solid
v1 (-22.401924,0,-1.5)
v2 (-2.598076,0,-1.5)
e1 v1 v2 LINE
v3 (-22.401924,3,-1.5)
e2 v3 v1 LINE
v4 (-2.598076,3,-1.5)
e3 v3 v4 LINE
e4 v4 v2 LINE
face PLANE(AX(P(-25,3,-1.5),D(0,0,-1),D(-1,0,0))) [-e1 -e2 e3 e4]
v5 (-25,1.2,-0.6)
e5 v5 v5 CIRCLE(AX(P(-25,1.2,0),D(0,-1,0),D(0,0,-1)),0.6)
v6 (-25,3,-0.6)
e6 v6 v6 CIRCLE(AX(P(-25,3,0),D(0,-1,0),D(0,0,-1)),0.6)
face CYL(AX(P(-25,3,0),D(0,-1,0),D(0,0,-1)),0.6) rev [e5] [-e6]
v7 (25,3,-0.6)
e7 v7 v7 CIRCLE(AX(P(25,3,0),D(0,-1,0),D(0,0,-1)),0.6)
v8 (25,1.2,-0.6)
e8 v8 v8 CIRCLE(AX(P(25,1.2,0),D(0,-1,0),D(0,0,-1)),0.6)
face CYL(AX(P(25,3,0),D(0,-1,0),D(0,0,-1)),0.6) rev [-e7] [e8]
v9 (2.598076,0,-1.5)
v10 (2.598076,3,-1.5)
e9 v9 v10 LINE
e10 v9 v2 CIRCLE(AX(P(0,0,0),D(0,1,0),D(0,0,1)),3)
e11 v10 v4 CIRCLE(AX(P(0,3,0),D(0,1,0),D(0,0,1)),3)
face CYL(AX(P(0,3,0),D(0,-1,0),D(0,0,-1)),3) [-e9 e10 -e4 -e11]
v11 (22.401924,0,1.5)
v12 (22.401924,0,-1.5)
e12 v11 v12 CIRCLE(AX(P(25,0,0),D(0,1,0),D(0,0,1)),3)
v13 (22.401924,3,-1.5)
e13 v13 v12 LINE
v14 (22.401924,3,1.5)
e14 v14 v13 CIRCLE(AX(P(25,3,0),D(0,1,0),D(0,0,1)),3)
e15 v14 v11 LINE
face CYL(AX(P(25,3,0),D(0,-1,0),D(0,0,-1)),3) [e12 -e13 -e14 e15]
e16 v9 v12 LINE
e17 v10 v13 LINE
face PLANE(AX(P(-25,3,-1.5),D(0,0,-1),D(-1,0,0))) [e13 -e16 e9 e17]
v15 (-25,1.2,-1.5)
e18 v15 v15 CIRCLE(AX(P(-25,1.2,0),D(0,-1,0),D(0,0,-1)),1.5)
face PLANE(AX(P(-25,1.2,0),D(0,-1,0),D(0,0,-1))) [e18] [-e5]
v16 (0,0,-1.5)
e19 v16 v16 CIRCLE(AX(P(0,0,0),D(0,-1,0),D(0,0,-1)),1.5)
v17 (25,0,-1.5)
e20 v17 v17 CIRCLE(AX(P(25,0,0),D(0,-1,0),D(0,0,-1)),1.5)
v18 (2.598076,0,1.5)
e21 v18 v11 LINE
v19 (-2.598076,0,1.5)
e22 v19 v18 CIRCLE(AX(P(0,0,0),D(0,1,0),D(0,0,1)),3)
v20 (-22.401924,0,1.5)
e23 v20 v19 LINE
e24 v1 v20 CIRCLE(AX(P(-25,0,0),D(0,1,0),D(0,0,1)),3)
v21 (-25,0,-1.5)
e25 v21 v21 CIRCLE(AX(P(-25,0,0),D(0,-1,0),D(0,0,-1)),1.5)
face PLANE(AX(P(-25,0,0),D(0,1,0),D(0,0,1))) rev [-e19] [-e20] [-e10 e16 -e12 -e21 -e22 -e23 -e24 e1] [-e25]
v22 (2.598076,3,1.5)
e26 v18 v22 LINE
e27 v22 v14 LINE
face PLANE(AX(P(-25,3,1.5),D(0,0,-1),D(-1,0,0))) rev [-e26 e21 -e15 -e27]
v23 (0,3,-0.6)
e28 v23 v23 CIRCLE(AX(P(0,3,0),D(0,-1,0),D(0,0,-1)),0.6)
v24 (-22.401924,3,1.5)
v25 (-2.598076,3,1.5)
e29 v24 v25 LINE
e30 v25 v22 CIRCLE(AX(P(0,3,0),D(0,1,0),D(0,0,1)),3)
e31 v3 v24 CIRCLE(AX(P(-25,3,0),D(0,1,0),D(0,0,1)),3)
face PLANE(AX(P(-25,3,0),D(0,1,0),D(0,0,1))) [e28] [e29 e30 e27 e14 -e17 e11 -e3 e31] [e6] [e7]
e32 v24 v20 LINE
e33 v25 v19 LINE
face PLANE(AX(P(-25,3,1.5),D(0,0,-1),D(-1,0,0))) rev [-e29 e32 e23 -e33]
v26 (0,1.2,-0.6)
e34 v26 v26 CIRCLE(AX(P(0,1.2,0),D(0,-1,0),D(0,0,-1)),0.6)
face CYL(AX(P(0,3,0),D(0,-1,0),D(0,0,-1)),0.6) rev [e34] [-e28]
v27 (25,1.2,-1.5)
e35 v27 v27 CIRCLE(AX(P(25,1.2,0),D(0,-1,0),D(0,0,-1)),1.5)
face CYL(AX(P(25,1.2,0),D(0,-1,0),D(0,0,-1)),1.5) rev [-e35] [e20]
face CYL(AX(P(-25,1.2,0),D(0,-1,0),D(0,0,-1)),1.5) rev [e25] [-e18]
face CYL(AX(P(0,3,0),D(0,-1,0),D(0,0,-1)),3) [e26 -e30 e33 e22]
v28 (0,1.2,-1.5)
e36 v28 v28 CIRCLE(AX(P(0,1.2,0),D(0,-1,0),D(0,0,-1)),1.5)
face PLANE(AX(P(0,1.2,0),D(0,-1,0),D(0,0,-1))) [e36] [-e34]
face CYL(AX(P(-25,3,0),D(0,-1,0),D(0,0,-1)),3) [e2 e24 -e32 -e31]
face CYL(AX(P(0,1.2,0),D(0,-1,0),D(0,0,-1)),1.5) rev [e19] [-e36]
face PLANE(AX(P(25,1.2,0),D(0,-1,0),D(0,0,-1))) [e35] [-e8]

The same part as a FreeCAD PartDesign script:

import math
import FreeCAD as App
import Part
import Sketcher

doc = App.newDocument("Part")
body = doc.addObject("PartDesign::Body", "Body")

# Sketch on XZ plane
sketch1 = body.newObject("Sketcher::SketchObject", "Sketch")
sketch1.AttachmentSupport = (doc.getObject("XZ_Plane"), [""])
sketch1.MapMode = "FlatFace"
sketch1.addGeometry([
    Part.LineSegment(App.Vector(2.6, 1.5, 0), App.Vector(22.4, 1.5, 0)),  # 0
    Part.ArcOfCircle(Part.Circle(App.Vector(25, 0, 0), App.Vector(0, 0, 1), 3), math.radians(-150), math.radians(150)),  # 1
    Part.LineSegment(App.Vector(22.4, -1.5, 0), App.Vector(2.6, -1.5, 0)),  # 2
    Part.ArcOfCircle(Part.Circle(App.Vector(0, 0, 0), App.Vector(0, 0, 1), 3), math.radians(-150), math.radians(-30)),  # 3
    Part.LineSegment(App.Vector(-2.6, -1.5, 0), App.Vector(-22.4, -1.5, 0)),  # 4
    Part.ArcOfCircle(Part.Circle(App.Vector(-25, 0, 0), App.Vector(0, 0, 1), 3), math.radians(30), math.radians(330)),  # 5
    Part.LineSegment(App.Vector(-22.4, 1.5, 0), App.Vector(-2.6, 1.5, 0)),  # 6
    Part.ArcOfCircle(Part.Circle(App.Vector(0, 0, 0), App.Vector(0, 0, 1), 3), math.radians(30), math.radians(150)),  # 7
], False)
sketch1.addConstraint([
    Sketcher.Constraint("Coincident", 0, 2, 1, 2),
    Sketcher.Constraint("Coincident", 1, 1, 2, 1),
    Sketcher.Constraint("Coincident", 2, 2, 3, 2),
    Sketcher.Constraint("Coincident", 3, 1, 4, 1),
    Sketcher.Constraint("Coincident", 4, 2, 5, 2),
    Sketcher.Constraint("Coincident", 5, 1, 6, 1),
    Sketcher.Constraint("Coincident", 6, 2, 7, 2),
    Sketcher.Constraint("Coincident", 7, 1, 0, 1),
    Sketcher.Constraint("Horizontal", 0),
    Sketcher.Constraint("Horizontal", 2),
    Sketcher.Constraint("Horizontal", 4),
    Sketcher.Constraint("Horizontal", 6),
    Sketcher.Constraint("Coincident", 3, 3, -1, 1),
    Sketcher.Constraint("Coincident", 7, 3, -1, 1),
    Sketcher.Constraint("Equal", 1, 3),
    Sketcher.Constraint("Equal", 3, 5),
    Sketcher.Constraint("Equal", 5, 7),
    Sketcher.Constraint("Symmetric", 1, 3, 5, 3, -1, 1),
    Sketcher.Constraint("Symmetric", 1, 1, 4, 2, -2),
    Sketcher.Constraint("Horizontal", 0, 2, 5, 1),
    Sketcher.Constraint("Vertical", 0, 2, 1, 1),
    Sketcher.Constraint("Radius", 1, 3.0),
    Sketcher.Constraint("DistanceX", -1, 1, 1, 3, 25.0),
    Sketcher.Constraint("DistanceY", 1, 1, 0, 2, 3.0),
])
pad1 = body.newObject("PartDesign::Pad", "Pad")
pad1.Profile = sketch1
pad1.Length = 3
pad1.Reversed = True

# Sketch on XZ plane
sketch2 = body.newObject("Sketcher::SketchObject", "Sketch001")
sketch2.AttachmentSupport = (doc.getObject("XZ_Plane"), [""])
sketch2.MapMode = "FlatFace"
sketch2.addGeometry([
    Part.Circle(App.Vector(-25, 0, 0), App.Vector(0, 0, 1), 1.5),
    Part.Circle(App.Vector(0, 0, 0), App.Vector(0, 0, 1), 1.5),
    Part.Circle(App.Vector(25, 0, 0), App.Vector(0, 0, 1), 1.5),
], False)
sketch2.addConstraint([
    Sketcher.Constraint("Coincident", 1, 3, -1, 1),
    Sketcher.Constraint("Equal", 0, 1),
    Sketcher.Constraint("Equal", 1, 2),
    Sketcher.Constraint("Symmetric", 0, 3, 2, 3, -1, 1),
    Sketcher.Constraint("PointOnObject", 0, 3, -1),
    Sketcher.Constraint("Diameter", 0, 3.0),
    Sketcher.Constraint("DistanceX", 0, 3, -1, 1, 25.0),
])
pocket1 = body.newObject("PartDesign::Pocket", "Pocket")
pocket1.Profile = sketch2
pocket1.Length = 1.2

# Sketch on XZ plane
sketch3 = body.newObject("Sketcher::SketchObject", "Sketch002")
sketch3.AttachmentSupport = (doc.getObject("XZ_Plane"), [""])
sketch3.MapMode = "FlatFace"
sketch3.addGeometry([
    Part.Circle(App.Vector(0, 0, 0), App.Vector(0, 0, 1), 0.6),
    Part.Circle(App.Vector(25, 0, 0), App.Vector(0, 0, 1), 0.6),
    Part.Circle(App.Vector(-25, 0, 0), App.Vector(0, 0, 1), 0.6),
], False)
sketch3.addConstraint([
    Sketcher.Constraint("Coincident", 0, 3, -1, 1),
    Sketcher.Constraint("Equal", 0, 1),
    Sketcher.Constraint("Equal", 1, 2),
    Sketcher.Constraint("Symmetric", 1, 3, 2, 3, -1, 1),
    Sketcher.Constraint("PointOnObject", 1, 3, -1),
    Sketcher.Constraint("Diameter", 0, 1.2),
    Sketcher.Constraint("DistanceX", -1, 1, 1, 3, 25.0),
])
pocket2 = body.newObject("PartDesign::Pocket", "Pocket001")
pocket2.Profile = sketch3
pocket2.Type = "ThroughAll"

doc.recompute()
